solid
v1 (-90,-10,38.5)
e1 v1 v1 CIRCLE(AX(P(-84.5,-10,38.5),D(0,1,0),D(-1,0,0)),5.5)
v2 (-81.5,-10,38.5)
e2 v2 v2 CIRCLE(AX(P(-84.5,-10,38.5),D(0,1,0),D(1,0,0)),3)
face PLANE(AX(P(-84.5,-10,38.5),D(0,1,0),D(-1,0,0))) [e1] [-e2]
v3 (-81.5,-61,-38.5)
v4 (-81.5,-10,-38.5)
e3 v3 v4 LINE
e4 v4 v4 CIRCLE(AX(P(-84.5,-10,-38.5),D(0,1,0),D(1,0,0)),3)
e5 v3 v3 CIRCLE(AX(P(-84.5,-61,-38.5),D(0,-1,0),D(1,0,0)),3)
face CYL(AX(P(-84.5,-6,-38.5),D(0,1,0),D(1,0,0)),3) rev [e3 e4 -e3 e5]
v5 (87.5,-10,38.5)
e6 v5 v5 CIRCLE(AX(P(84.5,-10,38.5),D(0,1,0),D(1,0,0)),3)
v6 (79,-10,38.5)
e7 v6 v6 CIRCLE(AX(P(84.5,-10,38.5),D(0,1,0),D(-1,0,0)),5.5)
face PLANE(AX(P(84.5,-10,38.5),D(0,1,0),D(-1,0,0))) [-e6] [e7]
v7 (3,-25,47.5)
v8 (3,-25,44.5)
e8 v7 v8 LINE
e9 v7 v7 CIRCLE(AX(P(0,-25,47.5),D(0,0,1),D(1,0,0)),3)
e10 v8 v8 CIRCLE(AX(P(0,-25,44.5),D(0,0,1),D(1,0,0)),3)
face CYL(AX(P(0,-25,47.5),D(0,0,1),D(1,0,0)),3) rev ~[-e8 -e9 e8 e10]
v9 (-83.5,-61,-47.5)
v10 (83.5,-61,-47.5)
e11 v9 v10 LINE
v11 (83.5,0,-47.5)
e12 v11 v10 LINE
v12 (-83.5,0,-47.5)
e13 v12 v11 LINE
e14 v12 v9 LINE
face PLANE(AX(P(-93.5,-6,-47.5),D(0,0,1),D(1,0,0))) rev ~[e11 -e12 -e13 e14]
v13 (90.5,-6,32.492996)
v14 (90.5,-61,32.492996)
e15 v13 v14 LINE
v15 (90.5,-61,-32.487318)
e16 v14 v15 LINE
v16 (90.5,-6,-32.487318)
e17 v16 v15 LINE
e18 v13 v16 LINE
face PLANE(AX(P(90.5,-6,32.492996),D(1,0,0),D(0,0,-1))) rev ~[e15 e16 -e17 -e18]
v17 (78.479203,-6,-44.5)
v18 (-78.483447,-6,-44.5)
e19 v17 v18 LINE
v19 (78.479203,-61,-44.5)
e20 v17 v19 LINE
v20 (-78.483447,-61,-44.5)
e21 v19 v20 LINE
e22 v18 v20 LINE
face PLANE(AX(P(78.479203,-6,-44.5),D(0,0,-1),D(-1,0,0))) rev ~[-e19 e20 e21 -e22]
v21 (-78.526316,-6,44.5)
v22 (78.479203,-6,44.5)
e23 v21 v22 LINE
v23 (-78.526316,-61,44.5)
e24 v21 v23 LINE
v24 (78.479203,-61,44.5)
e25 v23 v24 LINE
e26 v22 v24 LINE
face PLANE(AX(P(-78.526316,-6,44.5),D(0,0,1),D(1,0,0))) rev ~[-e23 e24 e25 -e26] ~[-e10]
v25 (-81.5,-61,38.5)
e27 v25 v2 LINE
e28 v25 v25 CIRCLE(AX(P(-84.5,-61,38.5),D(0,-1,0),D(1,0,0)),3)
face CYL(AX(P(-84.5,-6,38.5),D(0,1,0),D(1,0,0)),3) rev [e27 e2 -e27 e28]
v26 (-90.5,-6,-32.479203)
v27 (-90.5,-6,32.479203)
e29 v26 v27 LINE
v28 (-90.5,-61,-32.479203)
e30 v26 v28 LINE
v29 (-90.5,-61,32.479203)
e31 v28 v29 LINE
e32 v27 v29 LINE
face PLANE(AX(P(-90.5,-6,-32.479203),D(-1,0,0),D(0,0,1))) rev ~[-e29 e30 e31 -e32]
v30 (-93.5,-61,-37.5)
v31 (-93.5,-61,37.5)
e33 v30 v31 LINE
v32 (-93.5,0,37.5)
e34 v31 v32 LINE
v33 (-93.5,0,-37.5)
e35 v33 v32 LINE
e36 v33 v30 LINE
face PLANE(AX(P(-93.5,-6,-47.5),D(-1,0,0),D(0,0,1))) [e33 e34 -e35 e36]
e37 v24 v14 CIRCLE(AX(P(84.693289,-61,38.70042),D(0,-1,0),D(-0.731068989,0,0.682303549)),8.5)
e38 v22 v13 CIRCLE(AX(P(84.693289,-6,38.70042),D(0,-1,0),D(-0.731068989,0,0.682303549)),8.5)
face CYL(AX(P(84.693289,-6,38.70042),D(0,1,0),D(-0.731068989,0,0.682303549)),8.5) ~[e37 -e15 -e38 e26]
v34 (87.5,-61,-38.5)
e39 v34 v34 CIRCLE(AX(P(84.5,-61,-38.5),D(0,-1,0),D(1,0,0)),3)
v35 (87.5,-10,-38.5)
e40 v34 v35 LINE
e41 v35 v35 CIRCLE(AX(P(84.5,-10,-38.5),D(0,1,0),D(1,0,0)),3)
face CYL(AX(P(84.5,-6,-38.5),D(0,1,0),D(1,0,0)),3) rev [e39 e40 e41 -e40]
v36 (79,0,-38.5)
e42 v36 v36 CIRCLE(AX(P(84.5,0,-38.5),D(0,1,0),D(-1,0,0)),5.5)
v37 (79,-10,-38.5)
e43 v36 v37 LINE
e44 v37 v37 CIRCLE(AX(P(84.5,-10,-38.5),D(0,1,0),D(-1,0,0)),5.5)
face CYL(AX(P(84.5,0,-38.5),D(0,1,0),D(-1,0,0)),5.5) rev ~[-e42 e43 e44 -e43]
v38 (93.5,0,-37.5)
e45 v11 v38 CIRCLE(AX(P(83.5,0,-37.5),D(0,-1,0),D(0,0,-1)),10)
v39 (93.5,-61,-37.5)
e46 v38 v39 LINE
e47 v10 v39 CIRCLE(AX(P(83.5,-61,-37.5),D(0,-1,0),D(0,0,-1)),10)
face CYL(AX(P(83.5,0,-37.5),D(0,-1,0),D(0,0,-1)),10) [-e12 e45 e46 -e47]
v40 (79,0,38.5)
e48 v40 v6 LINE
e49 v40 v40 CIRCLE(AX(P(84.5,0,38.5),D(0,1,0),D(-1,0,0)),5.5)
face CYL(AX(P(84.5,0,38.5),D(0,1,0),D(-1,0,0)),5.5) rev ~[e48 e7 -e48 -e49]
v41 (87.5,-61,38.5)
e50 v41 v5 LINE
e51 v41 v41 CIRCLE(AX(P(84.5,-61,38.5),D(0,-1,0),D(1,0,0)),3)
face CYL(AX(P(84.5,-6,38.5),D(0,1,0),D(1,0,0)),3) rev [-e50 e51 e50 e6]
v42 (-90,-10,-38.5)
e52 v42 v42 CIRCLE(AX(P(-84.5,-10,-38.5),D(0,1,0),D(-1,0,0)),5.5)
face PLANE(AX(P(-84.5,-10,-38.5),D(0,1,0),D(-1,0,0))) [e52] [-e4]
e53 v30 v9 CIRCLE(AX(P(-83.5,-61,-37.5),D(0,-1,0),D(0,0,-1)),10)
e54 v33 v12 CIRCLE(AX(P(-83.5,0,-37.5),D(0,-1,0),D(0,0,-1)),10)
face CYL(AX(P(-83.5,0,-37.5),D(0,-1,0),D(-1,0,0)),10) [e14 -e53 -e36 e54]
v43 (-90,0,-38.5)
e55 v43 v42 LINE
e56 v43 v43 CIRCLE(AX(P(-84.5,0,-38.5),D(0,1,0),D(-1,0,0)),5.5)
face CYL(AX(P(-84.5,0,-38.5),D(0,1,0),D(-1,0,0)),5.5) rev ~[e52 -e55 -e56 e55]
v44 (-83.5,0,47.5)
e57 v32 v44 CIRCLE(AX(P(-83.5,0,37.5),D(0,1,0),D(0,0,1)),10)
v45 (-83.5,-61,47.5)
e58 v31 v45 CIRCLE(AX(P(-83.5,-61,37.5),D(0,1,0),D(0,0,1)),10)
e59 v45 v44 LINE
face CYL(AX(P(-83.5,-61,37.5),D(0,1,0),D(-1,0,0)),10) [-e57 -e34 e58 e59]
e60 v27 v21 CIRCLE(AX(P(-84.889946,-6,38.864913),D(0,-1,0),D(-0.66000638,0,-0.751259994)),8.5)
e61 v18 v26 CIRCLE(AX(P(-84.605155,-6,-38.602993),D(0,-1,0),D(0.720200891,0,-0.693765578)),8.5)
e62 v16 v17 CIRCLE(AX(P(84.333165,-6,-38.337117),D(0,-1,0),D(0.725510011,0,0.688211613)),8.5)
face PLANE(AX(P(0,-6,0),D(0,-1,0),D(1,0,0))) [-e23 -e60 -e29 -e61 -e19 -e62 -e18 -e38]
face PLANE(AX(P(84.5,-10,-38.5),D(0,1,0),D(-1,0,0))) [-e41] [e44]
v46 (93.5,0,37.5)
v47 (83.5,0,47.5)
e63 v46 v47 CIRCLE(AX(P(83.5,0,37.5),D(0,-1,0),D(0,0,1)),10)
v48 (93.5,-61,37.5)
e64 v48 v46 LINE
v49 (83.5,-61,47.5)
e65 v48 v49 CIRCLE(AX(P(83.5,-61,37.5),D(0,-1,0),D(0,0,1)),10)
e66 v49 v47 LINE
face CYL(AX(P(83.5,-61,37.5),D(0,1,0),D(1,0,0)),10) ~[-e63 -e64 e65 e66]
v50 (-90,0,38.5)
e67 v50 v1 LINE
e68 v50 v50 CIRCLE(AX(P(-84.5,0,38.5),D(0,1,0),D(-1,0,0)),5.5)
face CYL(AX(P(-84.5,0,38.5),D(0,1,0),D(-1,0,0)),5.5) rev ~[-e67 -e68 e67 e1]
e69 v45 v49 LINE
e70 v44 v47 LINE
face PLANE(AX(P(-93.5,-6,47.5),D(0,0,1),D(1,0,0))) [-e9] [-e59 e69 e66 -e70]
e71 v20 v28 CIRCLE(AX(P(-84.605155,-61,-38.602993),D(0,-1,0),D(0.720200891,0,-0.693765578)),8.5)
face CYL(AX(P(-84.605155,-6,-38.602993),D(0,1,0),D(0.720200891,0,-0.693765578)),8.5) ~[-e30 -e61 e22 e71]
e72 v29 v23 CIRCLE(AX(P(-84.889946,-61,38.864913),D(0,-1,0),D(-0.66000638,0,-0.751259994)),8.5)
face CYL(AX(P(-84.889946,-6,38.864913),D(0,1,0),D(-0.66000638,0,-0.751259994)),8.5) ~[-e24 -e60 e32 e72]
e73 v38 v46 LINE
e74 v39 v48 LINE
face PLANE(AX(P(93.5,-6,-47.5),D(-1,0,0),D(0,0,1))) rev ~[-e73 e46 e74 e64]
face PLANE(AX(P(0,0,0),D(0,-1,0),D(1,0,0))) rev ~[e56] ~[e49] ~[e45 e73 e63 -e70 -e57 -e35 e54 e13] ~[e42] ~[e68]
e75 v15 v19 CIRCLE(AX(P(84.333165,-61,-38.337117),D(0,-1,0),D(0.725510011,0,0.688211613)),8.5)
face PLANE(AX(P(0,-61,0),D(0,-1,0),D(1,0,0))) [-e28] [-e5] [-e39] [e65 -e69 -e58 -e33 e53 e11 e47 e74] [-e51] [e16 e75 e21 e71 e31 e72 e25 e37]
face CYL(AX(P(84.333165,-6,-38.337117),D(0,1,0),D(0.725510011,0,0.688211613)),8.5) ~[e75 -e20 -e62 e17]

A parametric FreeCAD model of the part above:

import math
import FreeCAD as App
import Part
import Sketcher


def edges_at(feature, points):
    """Names of the edges that pass closest to the given points."""
    edges = feature.Shape.Edges
    near = lambda p: min(range(len(edges)), key=lambda i: edges[i].distToShape(Part.Vertex(*p))[0])
    return sorted({f"Edge{near(p) + 1}" for p in points})


def add_polygon(sketch, points):
    """Adds a closed chain of lines whose ends are joined by coincident constraints."""
    first, n = sketch.GeometryCount, len(points)
    for a, b in zip(points, points[1:] + points[:1]):
        sketch.addGeometry(Part.LineSegment(App.Vector(*a, 0), App.Vector(*b, 0)), False)
    for i in range(n):
        sketch.addConstraint(Sketcher.Constraint("Coincident", first + i, 2, first + (i + 1) % n, 1))

doc = App.newDocument("Part")
body = doc.addObject("PartDesign::Body", "Body")

# Sketch on XZ plane
sketch1 = body.newObject("Sketcher::SketchObject", "Sketch")
sketch1.AttachmentSupport = (doc.getObject("XZ_Plane"), [""])
sketch1.MapMode = "FlatFace"
add_polygon(sketch1, [(-93.5, 47.5), (-93.5, -47.5), (93.5, -47.5), (93.5, 47.5)])  # lines 0-3
sketch1.addGeometry(Part.Circle(App.Vector(-84.5, -38.5, 0), App.Vector(0, 0, 1), 3), False)  # 4
sketch1.addGeometry(Part.Circle(App.Vector(84.5, -38.5, 0), App.Vector(0, 0, 1), 3), False)  # 5
sketch1.addGeometry(Part.Circle(App.Vector(-84.5, 38.5, 0), App.Vector(0, 0, 1), 3), False)  # 6
sketch1.addGeometry(Part.Circle(App.Vector(84.5, 38.5, 0), App.Vector(0, 0, 1), 3), False)  # 7
sketch1.addConstraint([
    Sketcher.Constraint("Vertical", 0),
    Sketcher.Constraint("Horizontal", 1),
    Sketcher.Constraint("Vertical", 2),
    Sketcher.Constraint("Horizontal", 3),
    Sketcher.Constraint("Equal", 4, 5),
    Sketcher.Constraint("Equal", 5, 6),
    Sketcher.Constraint("Equal", 6, 7),
    Sketcher.Constraint("Symmetric", 5, 3, 6, 3, -1, 1),
    Sketcher.Constraint("Symmetric", 4, 3, 7, 3, -1, 1),
    Sketcher.Constraint("Symmetric", 0, 2, 2, 2, -1, 1),
    Sketcher.Constraint("Symmetric", 4, 3, 5, 3, -2),
    Sketcher.Constraint("Diameter", 4, 6.0),
    Sketcher.Constraint("DistanceX", 1, 1, 1, 2, 187.0),
    Sketcher.Constraint("DistanceY", 0, 2, 0, 1, 95.0),
    Sketcher.Constraint("DistanceX", 4, 3, 5, 3, 169.0),
    Sketcher.Constraint("DistanceY", 4, 3, 6, 3, 77.0),
])
pad1 = body.newObject("PartDesign::Pad", "Pad")
pad1.Profile = sketch1
pad1.Length = 6

# Sketch on XZ plane
sketch2 = body.newObject("Sketcher::SketchObject", "Sketch001")
sketch2.AttachmentSupport = (doc.getObject("XZ_Plane"), [""])
sketch2.MapMode = "FlatFace"
sketch2.AttachmentOffset = App.Placement(App.Vector(0, 0, 6), App.Rotation())
add_polygon(sketch2, [(-93.5, 47.5), (-93.5, -47.5), (93.5, -47.5), (93.5, 47.5)])  # lines 0-3
sketch2.addGeometry(Part.Circle(App.Vector(-84.5, -38.5, 0), App.Vector(0, 0, 1), 3), False)  # 4
sketch2.addGeometry(Part.Circle(App.Vector(84.5, -38.5, 0), App.Vector(0, 0, 1), 3), False)  # 5
sketch2.addGeometry(Part.Circle(App.Vector(-84.5, 38.5, 0), App.Vector(0, 0, 1), 3), False)  # 6
sketch2.addGeometry(Part.LineSegment(App.Vector(-78.526316, 44.5, 0), App.Vector(78.479203, 44.5, 0)), False)  # 7
sketch2.addGeometry(Part.ArcOfCircle(Part.Circle(App.Vector(84.693289, 38.70042, 0), App.Vector(0, 0, 1), 8.5), math.radians(136.976086), math.radians(313.089694)), False)  # 8
sketch2.addGeometry(Part.LineSegment(App.Vector(90.5, 32.492996, 0), App.Vector(90.5, -32.487318, 0)), False)  # 9
sketch2.addGeometry(Part.ArcOfCircle(Part.Circle(App.Vector(84.333165, -38.337117, 0), App.Vector(0, 0, 1), 8.5), math.radians(43.488709), math.radians(226.472599)), False)  # 10
sketch2.addGeometry(Part.LineSegment(App.Vector(78.479203, -44.5, 0), App.Vector(-78.483447, -44.5, 0)), False)  # 11
sketch2.addGeometry(Part.ArcOfCircle(Part.Circle(App.Vector(-84.605155, -38.602993, 0), App.Vector(0, 0, 1), 8.5), math.radians(-43.928931), math.radians(133.908699)), False)  # 12
sketch2.addGeometry(Part.LineSegment(App.Vector(-90.5, -32.479203, 0), App.Vector(-90.5, 32.479203, 0)), False)  # 13
sketch2.addGeometry(Part.ArcOfCircle(Part.Circle(App.Vector(-84.889946, 38.864913, 0), App.Vector(0, 0, 1), 8.5), math.radians(-131.300359), math.radians(41.525359)), False)  # 14
sketch2.addGeometry(Part.Circle(App.Vector(84.5, 38.5, 0), App.Vector(0, 0, 1), 3), False)  # 15
sketch2.addConstraint([
    Sketcher.Constraint("Coincident", 7, 2, 8, 1),
    Sketcher.Constraint("Coincident", 8, 2, 9, 1),
    Sketcher.Constraint("Coincident", 9, 2, 10, 1),
    Sketcher.Constraint("Coincident", 10, 2, 11, 1),
    Sketcher.Constraint("Coincident", 11, 2, 12, 1),
    Sketcher.Constraint("Coincident", 12, 2, 13, 1),
    Sketcher.Constraint("Coincident", 13, 2, 14, 1),
    Sketcher.Constraint("Coincident", 14, 2, 7, 1),
    Sketcher.Constraint("Vertical", 0),
    Sketcher.Constraint("Horizontal", 1),
    Sketcher.Constraint("Vertical", 2),
    Sketcher.Constraint("Horizontal", 3),
    Sketcher.Constraint("Horizontal", 7),
    Sketcher.Constraint("Vertical", 9),
    Sketcher.Constraint("Horizontal", 11),
    Sketcher.Constraint("Vertical", 13),
    Sketcher.Constraint("Equal", 4, 5),
    Sketcher.Constraint("Equal", 5, 6),
    Sketcher.Constraint("Equal", 8, 10),
    Sketcher.Constraint("Equal", 10, 12),
    Sketcher.Constraint("Equal", 12, 14),
    Sketcher.Constraint("Equal", 6, 15),
    Sketcher.Constraint("Symmetric", 5, 3, 6, 3, -1, 1),
    Sketcher.Constraint("Symmetric", 4, 3, 15, 3, -1, 1),
    Sketcher.Constraint("Symmetric", 0, 2, 2, 2, -1, 1),
    Sketcher.Constraint("Symmetric", 4, 3, 5, 3, -2),
    Sketcher.Constraint("Symmetric", 7, 2, 10, 2, -1),
    Sketcher.Constraint("Diameter", 4, 6.0),
    Sketcher.Constraint("Radius", 8, 8.5),
    Sketcher.Constraint("DistanceX", 1, 1, 1, 2, 187.0),
    Sketcher.Constraint("DistanceY", 0, 2, 0, 1, 95.0),
    Sketcher.Constraint("DistanceX", 4, 3, 5, 3, 169.0),
    Sketcher.Constraint("DistanceY", 4, 3, 6, 3, 77.0),
    Sketcher.Constraint("DistanceY", 15, 3, 7, 2, 6.0),
    Sketcher.Constraint("DistanceX", 15, 3, 8, 2, 6.0),
    Sketcher.Constraint("DistanceX", 12, 2, 4, 3, 6.0),
    Sketcher.Constraint("DistanceX", 7, 1, 7, 2, 157.005519),
    Sketcher.Constraint("DistanceX", 11, 2, 11, 1, 156.96265),
    Sketcher.Constraint("DistanceY", 10, 3, 9, 2, 5.849799),
    Sketcher.Constraint("DistanceX", 14, 3, 11, 2, 6.406499),
    Sketcher.Constraint("DistanceY", 9, 2, 9, 1, 64.980314),
    Sketcher.Constraint("DistanceY", 13, 1, 13, 2, 64.958406),
    Sketcher.Constraint("DistanceX", -1, 1, 8, 3, 84.693289),
])
pad2 = body.newObject("PartDesign::Pad", "Pad001")
pad2.Profile = sketch2
pad2.Length = 55
doc.recompute()

fillet = body.newObject("PartDesign::Fillet", "Fillet")
fillet.Base = (pad2, edges_at(pad2, [
    (-93.5, -30.5, -47.5),
    (-93.5, -30.5, 47.5),
    (93.5, -30.5, 47.5),
    (93.5, -30.5, -47.5),
]))
fillet.Radius = 10

# Sketch on XZ plane
sketch3 = body.newObject("Sketcher::SketchObject", "Sketch002")
sketch3.AttachmentSupport = (doc.getObject("XZ_Plane"), [""])
sketch3.MapMode = "FlatFace"
sketch3.addGeometry([
    Part.Circle(App.Vector(84.5, 38.5, 0), App.Vector(0, 0, 1), 5.5),
    Part.Circle(App.Vector(84.5, -38.5, 0), App.Vector(0, 0, 1), 5.5),
    Part.Circle(App.Vector(-84.5, -38.5, 0), App.Vector(0, 0, 1), 5.5),
    Part.Circle(App.Vector(-84.5, 38.5, 0), App.Vector(0, 0, 1), 5.5),
], False)
sketch3.addConstraint([
    Sketcher.Constraint("Equal", 0, 1),
    Sketcher.Constraint("Equal", 1, 2),
    Sketcher.Constraint("Equal", 2, 3),
    Sketcher.Constraint("Symmetric", 0, 3, 2, 3, -1, 1),
    Sketcher.Constraint("Symmetric", 1, 3, 3, 3, -1, 1),
    Sketcher.Constraint("Symmetric", 1, 3, 2, 3, -2),
    Sketcher.Constraint("Diameter", 0, 11.0),
    Sketcher.Constraint("DistanceY", 1, 3, 0, 3, 77.0),
    Sketcher.Constraint("DistanceX", 2, 3, 1, 3, 169.0),
])
pocket1 = body.newObject("PartDesign::Pocket", "Pocket")
pocket1.Profile = sketch3
pocket1.Length = 10
pocket1.Reversed = True

# Sketch on XY plane
sketch4 = body.newObject("Sketcher::SketchObject", "Sketch003")
sketch4.AttachmentSupport = (doc.getObject("XY_Plane"), [""])
sketch4.MapMode = "FlatFace"
sketch4.AttachmentOffset = App.Placement(App.Vector(0, 0, 47.5), App.Rotation())
sketch4.addGeometry(Part.Circle(App.Vector(0, -25, 0), App.Vector(0, 0, 1), 3), False)
sketch4.addConstraint([
    Sketcher.Constraint("PointOnObject", 0, 3, -2),
    Sketcher.Constraint("Diameter", 0, 6.0),
    Sketcher.Constraint("DistanceY", 0, 3, -1, 1, 25.0),
])
pocket2 = body.newObject("PartDesign::Pocket", "Pocket001")
pocket2.Profile = sketch4
pocket2.Length = 25

doc.recompute()
